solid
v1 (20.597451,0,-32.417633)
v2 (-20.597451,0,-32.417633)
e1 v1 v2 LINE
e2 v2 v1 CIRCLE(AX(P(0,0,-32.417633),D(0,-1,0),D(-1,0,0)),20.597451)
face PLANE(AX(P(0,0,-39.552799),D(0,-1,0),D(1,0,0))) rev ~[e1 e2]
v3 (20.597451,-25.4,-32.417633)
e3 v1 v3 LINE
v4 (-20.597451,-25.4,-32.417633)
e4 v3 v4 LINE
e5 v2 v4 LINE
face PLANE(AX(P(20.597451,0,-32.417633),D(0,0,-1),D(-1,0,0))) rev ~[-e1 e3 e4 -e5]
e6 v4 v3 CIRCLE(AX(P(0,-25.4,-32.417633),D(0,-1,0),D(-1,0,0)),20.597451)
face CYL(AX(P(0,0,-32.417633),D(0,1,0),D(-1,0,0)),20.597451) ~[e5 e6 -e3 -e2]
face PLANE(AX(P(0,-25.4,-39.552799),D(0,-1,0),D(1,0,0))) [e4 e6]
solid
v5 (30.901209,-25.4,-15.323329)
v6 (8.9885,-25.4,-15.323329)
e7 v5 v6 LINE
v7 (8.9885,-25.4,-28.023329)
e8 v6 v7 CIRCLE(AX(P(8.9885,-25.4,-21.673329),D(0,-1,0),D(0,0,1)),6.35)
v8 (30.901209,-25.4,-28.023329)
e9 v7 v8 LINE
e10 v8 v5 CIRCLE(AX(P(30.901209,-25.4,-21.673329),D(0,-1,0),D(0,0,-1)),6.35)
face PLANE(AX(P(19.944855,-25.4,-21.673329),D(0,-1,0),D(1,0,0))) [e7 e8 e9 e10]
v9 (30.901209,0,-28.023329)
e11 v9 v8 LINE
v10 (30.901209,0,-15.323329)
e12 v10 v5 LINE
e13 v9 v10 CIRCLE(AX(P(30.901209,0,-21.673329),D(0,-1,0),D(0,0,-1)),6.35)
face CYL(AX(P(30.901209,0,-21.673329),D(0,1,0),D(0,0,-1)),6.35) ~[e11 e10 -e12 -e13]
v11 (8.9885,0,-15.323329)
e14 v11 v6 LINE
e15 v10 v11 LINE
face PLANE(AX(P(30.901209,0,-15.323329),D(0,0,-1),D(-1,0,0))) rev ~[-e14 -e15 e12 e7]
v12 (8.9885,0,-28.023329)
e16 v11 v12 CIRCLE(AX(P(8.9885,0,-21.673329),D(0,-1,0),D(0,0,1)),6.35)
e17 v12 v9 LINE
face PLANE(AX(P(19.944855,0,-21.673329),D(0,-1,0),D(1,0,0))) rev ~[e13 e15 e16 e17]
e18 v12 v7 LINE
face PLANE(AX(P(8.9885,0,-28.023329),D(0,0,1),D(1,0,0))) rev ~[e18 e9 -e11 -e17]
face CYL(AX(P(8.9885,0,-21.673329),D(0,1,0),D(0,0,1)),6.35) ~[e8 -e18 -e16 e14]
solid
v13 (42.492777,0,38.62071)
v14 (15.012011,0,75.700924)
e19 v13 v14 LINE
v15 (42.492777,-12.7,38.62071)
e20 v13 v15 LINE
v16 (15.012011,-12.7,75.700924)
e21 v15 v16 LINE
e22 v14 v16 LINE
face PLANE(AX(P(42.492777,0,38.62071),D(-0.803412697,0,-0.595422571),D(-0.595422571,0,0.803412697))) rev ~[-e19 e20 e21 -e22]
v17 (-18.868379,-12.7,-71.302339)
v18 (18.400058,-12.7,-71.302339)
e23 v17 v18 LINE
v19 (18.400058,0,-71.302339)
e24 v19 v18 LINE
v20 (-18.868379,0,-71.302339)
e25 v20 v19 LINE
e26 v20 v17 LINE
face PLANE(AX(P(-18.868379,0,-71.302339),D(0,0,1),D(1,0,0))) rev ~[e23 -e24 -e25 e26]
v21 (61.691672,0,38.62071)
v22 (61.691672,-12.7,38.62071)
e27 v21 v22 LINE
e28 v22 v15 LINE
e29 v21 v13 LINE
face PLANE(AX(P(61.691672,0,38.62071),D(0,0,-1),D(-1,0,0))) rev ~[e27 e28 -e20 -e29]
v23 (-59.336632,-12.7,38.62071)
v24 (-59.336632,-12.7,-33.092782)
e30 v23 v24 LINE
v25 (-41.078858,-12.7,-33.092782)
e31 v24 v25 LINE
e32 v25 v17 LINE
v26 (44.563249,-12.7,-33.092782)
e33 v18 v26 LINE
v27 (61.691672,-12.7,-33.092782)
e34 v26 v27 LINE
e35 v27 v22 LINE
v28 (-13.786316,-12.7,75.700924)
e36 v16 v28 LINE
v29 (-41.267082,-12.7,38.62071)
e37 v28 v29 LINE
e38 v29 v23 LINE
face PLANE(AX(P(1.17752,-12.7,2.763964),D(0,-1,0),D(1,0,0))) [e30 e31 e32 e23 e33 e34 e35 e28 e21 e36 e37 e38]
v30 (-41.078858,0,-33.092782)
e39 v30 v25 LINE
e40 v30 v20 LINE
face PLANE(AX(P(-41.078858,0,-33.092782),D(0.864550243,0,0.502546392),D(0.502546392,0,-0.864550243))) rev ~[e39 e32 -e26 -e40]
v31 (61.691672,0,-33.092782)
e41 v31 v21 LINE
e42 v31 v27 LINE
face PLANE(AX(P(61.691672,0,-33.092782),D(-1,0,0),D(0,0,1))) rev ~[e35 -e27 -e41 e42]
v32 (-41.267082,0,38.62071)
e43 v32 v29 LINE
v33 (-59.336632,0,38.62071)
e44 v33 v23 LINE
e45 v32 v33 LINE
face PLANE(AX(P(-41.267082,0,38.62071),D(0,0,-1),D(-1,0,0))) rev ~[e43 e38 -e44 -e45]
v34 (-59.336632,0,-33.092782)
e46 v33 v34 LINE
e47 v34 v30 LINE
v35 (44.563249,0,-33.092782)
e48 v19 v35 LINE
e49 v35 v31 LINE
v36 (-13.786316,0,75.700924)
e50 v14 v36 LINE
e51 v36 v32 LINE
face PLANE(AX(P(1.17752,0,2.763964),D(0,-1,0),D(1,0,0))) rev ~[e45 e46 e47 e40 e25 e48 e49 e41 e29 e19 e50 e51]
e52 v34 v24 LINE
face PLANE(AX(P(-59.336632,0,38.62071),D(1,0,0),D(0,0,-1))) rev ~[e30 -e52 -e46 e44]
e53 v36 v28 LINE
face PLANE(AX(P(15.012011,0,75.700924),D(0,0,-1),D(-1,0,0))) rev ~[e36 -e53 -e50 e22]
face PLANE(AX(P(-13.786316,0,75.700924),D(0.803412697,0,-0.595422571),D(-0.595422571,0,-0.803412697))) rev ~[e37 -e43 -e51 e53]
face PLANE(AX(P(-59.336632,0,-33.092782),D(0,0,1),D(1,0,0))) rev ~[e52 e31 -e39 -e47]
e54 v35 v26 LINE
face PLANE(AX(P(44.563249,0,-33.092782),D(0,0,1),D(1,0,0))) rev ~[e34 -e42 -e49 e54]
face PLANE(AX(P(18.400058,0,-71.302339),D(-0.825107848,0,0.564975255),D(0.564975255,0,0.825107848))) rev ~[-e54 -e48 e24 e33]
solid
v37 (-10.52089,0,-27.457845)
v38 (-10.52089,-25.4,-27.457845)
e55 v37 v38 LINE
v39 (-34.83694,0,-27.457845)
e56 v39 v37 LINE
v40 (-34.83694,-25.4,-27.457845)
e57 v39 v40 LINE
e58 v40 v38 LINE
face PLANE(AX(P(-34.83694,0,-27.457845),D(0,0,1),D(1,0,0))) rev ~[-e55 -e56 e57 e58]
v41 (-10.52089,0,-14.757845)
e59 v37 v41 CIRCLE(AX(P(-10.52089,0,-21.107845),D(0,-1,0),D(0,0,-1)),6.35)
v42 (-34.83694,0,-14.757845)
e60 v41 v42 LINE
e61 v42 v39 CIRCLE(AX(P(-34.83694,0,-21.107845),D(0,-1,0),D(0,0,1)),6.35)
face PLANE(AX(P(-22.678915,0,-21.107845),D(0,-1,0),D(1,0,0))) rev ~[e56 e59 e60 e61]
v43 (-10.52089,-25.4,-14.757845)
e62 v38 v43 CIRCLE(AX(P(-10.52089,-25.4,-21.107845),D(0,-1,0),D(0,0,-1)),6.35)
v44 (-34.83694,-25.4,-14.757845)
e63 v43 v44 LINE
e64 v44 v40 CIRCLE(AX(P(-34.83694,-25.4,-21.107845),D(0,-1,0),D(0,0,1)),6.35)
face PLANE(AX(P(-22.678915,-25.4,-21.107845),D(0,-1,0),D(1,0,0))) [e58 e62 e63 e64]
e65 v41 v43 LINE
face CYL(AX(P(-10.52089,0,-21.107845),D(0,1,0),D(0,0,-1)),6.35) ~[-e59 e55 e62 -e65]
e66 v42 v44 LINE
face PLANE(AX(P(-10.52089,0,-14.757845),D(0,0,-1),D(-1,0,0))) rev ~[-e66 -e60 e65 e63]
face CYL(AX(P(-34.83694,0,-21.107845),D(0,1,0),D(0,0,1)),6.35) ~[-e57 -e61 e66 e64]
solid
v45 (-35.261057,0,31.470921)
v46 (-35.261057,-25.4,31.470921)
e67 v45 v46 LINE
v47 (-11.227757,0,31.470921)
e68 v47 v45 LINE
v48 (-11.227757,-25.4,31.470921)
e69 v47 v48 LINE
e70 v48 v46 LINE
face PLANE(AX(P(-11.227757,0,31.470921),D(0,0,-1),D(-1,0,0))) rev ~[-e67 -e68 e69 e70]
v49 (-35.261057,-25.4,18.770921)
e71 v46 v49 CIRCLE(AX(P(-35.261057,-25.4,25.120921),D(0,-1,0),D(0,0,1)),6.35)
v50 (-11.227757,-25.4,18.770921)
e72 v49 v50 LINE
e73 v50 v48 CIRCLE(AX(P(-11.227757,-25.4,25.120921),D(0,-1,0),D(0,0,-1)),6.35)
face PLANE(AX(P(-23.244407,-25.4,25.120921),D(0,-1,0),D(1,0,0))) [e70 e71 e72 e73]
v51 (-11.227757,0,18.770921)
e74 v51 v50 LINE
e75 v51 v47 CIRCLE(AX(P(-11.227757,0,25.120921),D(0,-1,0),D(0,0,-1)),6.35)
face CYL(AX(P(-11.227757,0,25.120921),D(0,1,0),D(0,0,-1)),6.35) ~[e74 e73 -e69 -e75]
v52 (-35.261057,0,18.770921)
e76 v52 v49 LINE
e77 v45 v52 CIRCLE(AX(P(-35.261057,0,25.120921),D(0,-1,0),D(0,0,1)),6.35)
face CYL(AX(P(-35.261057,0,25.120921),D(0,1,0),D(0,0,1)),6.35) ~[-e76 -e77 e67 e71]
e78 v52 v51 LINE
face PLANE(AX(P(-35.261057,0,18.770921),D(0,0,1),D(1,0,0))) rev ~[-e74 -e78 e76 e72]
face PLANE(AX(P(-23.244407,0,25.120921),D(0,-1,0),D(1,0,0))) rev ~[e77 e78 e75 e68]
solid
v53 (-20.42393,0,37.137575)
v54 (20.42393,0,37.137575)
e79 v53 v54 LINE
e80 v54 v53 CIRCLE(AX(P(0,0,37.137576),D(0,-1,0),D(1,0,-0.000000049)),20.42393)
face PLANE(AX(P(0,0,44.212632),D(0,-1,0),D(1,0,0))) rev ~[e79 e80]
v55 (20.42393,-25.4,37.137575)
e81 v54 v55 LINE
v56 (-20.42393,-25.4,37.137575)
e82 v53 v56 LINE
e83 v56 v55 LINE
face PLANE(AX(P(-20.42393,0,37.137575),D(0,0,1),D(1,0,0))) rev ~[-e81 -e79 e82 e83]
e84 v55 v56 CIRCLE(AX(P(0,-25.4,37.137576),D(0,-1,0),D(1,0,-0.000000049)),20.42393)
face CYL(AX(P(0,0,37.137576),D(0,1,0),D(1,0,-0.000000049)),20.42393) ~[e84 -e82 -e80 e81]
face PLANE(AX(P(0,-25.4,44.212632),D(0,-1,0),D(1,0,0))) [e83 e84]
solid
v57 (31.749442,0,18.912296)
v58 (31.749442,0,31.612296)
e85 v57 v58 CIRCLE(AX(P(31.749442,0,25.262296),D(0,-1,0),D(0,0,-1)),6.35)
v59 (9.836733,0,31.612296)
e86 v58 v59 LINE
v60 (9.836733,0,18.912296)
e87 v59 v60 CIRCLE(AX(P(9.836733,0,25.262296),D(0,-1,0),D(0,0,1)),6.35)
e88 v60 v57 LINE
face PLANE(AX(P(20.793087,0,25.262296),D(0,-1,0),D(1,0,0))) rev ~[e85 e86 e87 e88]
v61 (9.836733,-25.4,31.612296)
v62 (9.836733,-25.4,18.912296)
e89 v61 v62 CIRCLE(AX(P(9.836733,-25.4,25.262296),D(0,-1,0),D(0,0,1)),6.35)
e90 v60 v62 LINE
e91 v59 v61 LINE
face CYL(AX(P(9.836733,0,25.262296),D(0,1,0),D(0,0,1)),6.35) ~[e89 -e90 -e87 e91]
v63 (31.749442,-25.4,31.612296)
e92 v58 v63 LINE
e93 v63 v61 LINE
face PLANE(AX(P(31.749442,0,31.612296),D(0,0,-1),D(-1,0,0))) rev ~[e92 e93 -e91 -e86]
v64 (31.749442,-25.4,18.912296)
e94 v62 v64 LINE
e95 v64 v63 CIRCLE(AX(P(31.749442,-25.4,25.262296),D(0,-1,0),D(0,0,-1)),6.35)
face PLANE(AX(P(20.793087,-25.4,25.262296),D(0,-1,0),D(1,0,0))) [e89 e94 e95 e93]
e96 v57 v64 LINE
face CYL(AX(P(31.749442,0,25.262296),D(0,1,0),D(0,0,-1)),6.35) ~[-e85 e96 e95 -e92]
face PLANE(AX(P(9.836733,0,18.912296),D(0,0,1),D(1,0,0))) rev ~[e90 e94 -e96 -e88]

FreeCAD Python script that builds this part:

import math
import FreeCAD as App
import Part
import Sketcher
Q = App.Units.Quantity


def add_polygon(sketch, points):
    """Adds a closed chain of lines whose ends are joined by coincident constraints."""
    first, n = sketch.GeometryCount, len(points)
    for a, b in zip(points, points[1:] + points[:1]):
        sketch.addGeometry(Part.LineSegment(App.Vector(*a, 0), App.Vector(*b, 0)), False)
    for i in range(n):
        sketch.addConstraint(Sketcher.Constraint("Coincident", first + i, 2, first + (i + 1) % n, 1))

doc = App.newDocument("Part")
body = doc.addObject("PartDesign::Body", "Body")
body.AllowCompound = True

sketch1 = body.newObject("Sketcher::SketchObject", "Sketch")
sketch1.AttachmentSupport = (doc.getObject("XZ_Plane"), [""])
sketch1.MapMode = "FlatFace"
sketch1.addGeometry(Part.ArcOfCircle(Part.Circle(App.Vector(-35, 25, 0), App.Vector(0, 0, 1), 6), math.radians(90), math.radians(270)), False)
sketch1.addGeometry(Part.LineSegment(App.Vector(-35, 19, 0), App.Vector(-11, 19, 0)), False)
sketch1.addGeometry(Part.ArcOfCircle(Part.Circle(App.Vector(-11, 25, 0), App.Vector(0, 0, 1), 6), math.radians(-90), math.radians(90)), False)
sketch1.addGeometry(Part.LineSegment(App.Vector(-11, 31, 0), App.Vector(-35, 31, 0)), False)
sketch1.addGeometry(Part.LineSegment(App.Vector(-20, 37, 0), App.Vector(20, 37, 0)), False)
sketch1.addGeometry(Part.ArcOfCircle(Part.Circle(App.Vector(0, 37, 0), App.Vector(0, 0, 1), 20), math.radians(0), math.radians(180)), False)
sketch1.addGeometry(Part.ArcOfCircle(Part.Circle(App.Vector(32, 25, 0), App.Vector(0, 0, 1), 6), math.radians(-90), math.radians(90)), False)
sketch1.addGeometry(Part.LineSegment(App.Vector(32, 32, 0), App.Vector(10, 32, 0)), False)
sketch1.addGeometry(Part.ArcOfCircle(Part.Circle(App.Vector(10, 25, 0), App.Vector(0, 0, 1), 6), math.radians(90), math.radians(270)), False)
sketch1.addGeometry(Part.LineSegment(App.Vector(10, 19, 0), App.Vector(32, 19, 0)), False)
sketch1.addGeometry(Part.ArcOfCircle(Part.Circle(App.Vector(-35, -21, 0), App.Vector(0, 0, 1), 6), math.radians(90), math.radians(270)), False)
sketch1.addGeometry(Part.LineSegment(App.Vector(-35, -27, 0), App.Vector(-11, -27, 0)), False)
sketch1.addGeometry(Part.ArcOfCircle(Part.Circle(App.Vector(-11, -21, 0), App.Vector(0, 0, 1), 6), math.radians(-90), math.radians(90)), False)
sketch1.addGeometry(Part.LineSegment(App.Vector(-11, -15, 0), App.Vector(-35, -15, 0)), False)
sketch1.addGeometry(Part.LineSegment(App.Vector(21, -32, 0), App.Vector(-21, -32, 0)), False)
sketch1.addGeometry(Part.ArcOfCircle(Part.Circle(App.Vector(0, -32, 0), App.Vector(0, 0, 1), 21), math.radians(180), math.radians(360)), False)
sketch1.addGeometry(Part.ArcOfCircle(Part.Circle(App.Vector(31, -22, 0), App.Vector(0, 0, 1), 6), math.radians(-90), math.radians(90)), False)
sketch1.addGeometry(Part.LineSegment(App.Vector(31, -15, 0), App.Vector(9, -15, 0)), False)
sketch1.addGeometry(Part.ArcOfCircle(Part.Circle(App.Vector(9, -22, 0), App.Vector(0, 0, 1), 6), math.radians(90), math.radians(270)), False)
sketch1.addGeometry(Part.LineSegment(App.Vector(9, -28, 0), App.Vector(31, -28, 0)), False)
sketch1.addConstraint(Sketcher.Constraint("Tangent", 0, 2, 1, 1))
sketch1.addConstraint(Sketcher.Constraint("Tangent", 1, 2, 2, 1))
sketch1.addConstraint(Sketcher.Constraint("Tangent", 2, 2, 3, 1))
sketch1.addConstraint(Sketcher.Constraint("Tangent", 3, 2, 0, 1))
sketch1.addConstraint(Sketcher.Constraint("Coincident", 4, 1, 5, 2))
sketch1.addConstraint(Sketcher.Constraint("Coincident", 5, 1, 4, 2))
sketch1.addConstraint(Sketcher.Constraint("Tangent", 6, 2, 7, 1))
sketch1.addConstraint(Sketcher.Constraint("Tangent", 7, 2, 8, 1))
sketch1.addConstraint(Sketcher.Constraint("Tangent", 8, 2, 9, 1))
sketch1.addConstraint(Sketcher.Constraint("Tangent", 9, 2, 6, 1))
sketch1.addConstraint(Sketcher.Constraint("Tangent", 10, 2, 11, 1))
sketch1.addConstraint(Sketcher.Constraint("Tangent", 11, 2, 12, 1))
sketch1.addConstraint(Sketcher.Constraint("Tangent", 12, 2, 13, 1))
sketch1.addConstraint(Sketcher.Constraint("Tangent", 13, 2, 10, 1))
sketch1.addConstraint(Sketcher.Constraint("Coincident", 14, 1, 15, 2))
sketch1.addConstraint(Sketcher.Constraint("Coincident", 15, 1, 14, 2))
sketch1.addConstraint(Sketcher.Constraint("Tangent", 16, 2, 17, 1))
sketch1.addConstraint(Sketcher.Constraint("Tangent", 17, 2, 18, 1))
sketch1.addConstraint(Sketcher.Constraint("Tangent", 18, 2, 19, 1))
sketch1.addConstraint(Sketcher.Constraint("Tangent", 19, 2, 16, 1))
sketch1.addConstraint(Sketcher.Constraint("Horizontal", 1))
sketch1.addConstraint(Sketcher.Constraint("Horizontal", 3))
sketch1.addConstraint(Sketcher.Constraint("Horizontal", 4))
sketch1.addConstraint(Sketcher.Constraint("Horizontal", 7))
sketch1.addConstraint(Sketcher.Constraint("Horizontal", 9))
sketch1.addConstraint(Sketcher.Constraint("Horizontal", 11))
sketch1.addConstraint(Sketcher.Constraint("Horizontal", 13))
sketch1.addConstraint(Sketcher.Constraint("Horizontal", 14))
sketch1.addConstraint(Sketcher.Constraint("Horizontal", 17))
sketch1.addConstraint(Sketcher.Constraint("Horizontal", 19))
sketch1.addConstraint(Sketcher.Constraint("Equal", 2, 6))
sketch1.addConstraint(Sketcher.Constraint("Equal", 8, 10))
sketch1.addConstraint(Sketcher.Constraint("Equal", 12, 16))
sketch1.addConstraint(Sketcher.Constraint("PointOnObject", 5, 3, -2))
sketch1.addConstraint(Sketcher.Constraint("PointOnObject", 15, 3, -2))
sketch1.addConstraint(Sketcher.Constraint("Horizontal", 5, 3, 4, 1))
sketch1.addConstraint(Sketcher.Constraint("Horizontal", 15, 3, 14, 1))
sketch1.addConstraint(Sketcher.Constraint("Equal", 9, 17))
sketch1.addConstraint(Sketcher.Constraint("Radius", 0, Q("0.25 in")))
sketch1.addConstraint(Sketcher.Constraint("Radius", 5, Q("20.42393 mm")))
sketch1.addConstraint(Sketcher.Constraint("Radius", 15, Q("20.597451 mm")))
sketch1.addConstraint(Sketcher.Constraint("DistanceX", 1, 1, 1, 2, Q("24.0333 mm")))
sketch1.addConstraint(Sketcher.Constraint("DistanceX", 7, 2, 7, 1, Q("21.912709 mm")))
sketch1.addConstraint(Sketcher.Constraint("DistanceX", 11, 1, 11, 2, Q("24.31605 mm")))
sketch1.addConstraint(Sketcher.Constraint("DistanceX", -1, 1, 18, 3, Q("8.9885 mm")))
sketch1.addConstraint(Sketcher.Constraint("DistanceX", 2, 3, 6, 3, Q("42.977199 mm")))
sketch1.addConstraint(Sketcher.Constraint("DistanceX", 12, 3, 16, 3, Q("41.422099 mm")))
sketch1.addConstraint(Sketcher.Constraint("DistanceY", -1, 1, 0, 3, Q("25.120921 mm")))
sketch1.addConstraint(Sketcher.Constraint("DistanceX", -1, 1, 6, 3, Q("31.749442 mm")))
sketch1.addConstraint(Sketcher.Constraint("DistanceY", 16, 3, -1, 1, Q("21.673329 mm")))
sketch1.addConstraint(Sketcher.Constraint("DistanceY", 6, 3, 5, 3, Q("11.87528 mm")))
sketch1.addConstraint(Sketcher.Constraint("DistanceY", 10, 3, 8, 3, Q("46.370141 mm")))
sketch1.addConstraint(Sketcher.Constraint("DistanceY", 15, 3, 12, 3, Q("11.309788 mm")))
sketch1.addConstraint(Sketcher.Constraint("DistanceY", -1, 1, 5, 3, Q("37.137576 mm")))
pad1 = body.newObject("PartDesign::Pad", "Pad")
pad1.Profile = sketch1
pad1.Length = Q("1 in")
body2 = doc.addObject("PartDesign::Body", "Body001")

sketch2 = body2.newObject("Sketcher::SketchObject", "Sketch001")
sketch2.AttachmentSupport = (doc.getObject("XZ_Plane001"), [""])
sketch2.MapMode = "FlatFace"
add_polygon(sketch2, [(62, -33), (62, 39), (42, 39), (15, 76), (-14, 76), (-41, 39), (-59, 39), (-59, -33), (-41, -33), (-19, -71), (18, -71), (45, -33)])
sketch2.addConstraint(Sketcher.Constraint("Vertical", 0))
sketch2.addConstraint(Sketcher.Constraint("Horizontal", 1))
sketch2.addConstraint(Sketcher.Constraint("Horizontal", 3))
sketch2.addConstraint(Sketcher.Constraint("Horizontal", 5))
sketch2.addConstraint(Sketcher.Constraint("Vertical", 6))
sketch2.addConstraint(Sketcher.Constraint("Horizontal", 7))
sketch2.addConstraint(Sketcher.Constraint("Horizontal", 9))
sketch2.addConstraint(Sketcher.Constraint("Horizontal", 11))
sketch2.addConstraint(Sketcher.Constraint("Horizontal", 1, 2, 4, 2))
sketch2.addConstraint(Sketcher.Constraint("Horizontal", 7, 2, 10, 2))
sketch2.addConstraint(Sketcher.Constraint("Equal", 2, 4))
sketch2.addConstraint(Sketcher.Constraint("DistanceX", 5, 2, 5, 1, Q("18.06955 mm")))
sketch2.addConstraint(Sketcher.Constraint("Distance", 10, Q("46.308561 mm")))
sketch2.addConstraint(Sketcher.Constraint("DistanceX", 1, 2, 1, 1, Q("19.198895 mm")))
sketch2.addConstraint(Sketcher.Constraint("DistanceX", 3, 2, 3, 1, Q("28.798327 mm")))
sketch2.addConstraint(Sketcher.Constraint("DistanceX", 7, 1, 7, 2, Q("18.257774 mm")))
sketch2.addConstraint(Sketcher.Constraint("DistanceX", 9, 1, 9, 2, Q("37.268437 mm")))
sketch2.addConstraint(Sketcher.Constraint("DistanceX", 11, 1, 11, 2, Q("17.128423 mm")))
sketch2.addConstraint(Sketcher.Constraint("DistanceY", 0, 1, 0, 2, Q("71.713492 mm")))
sketch2.addConstraint(Sketcher.Constraint("DistanceX", -1, 1, 0, 2, Q("61.691672 mm")))
sketch2.addConstraint(Sketcher.Constraint("DistanceY", -1, 1, 0, 2, Q("38.62071 mm")))
sketch2.addConstraint(Sketcher.Constraint("DistanceX", -1, 1, 2, 2, Q("15.012011 mm")))
sketch2.addConstraint(Sketcher.Constraint("DistanceX", 8, 2, -1, 1, Q("18.868379 mm")))
sketch2.addConstraint(Sketcher.Constraint("Distance", 2, Q("46.153383 mm")))
pad2 = body2.newObject("PartDesign::Pad", "Pad001")
pad2.Profile = sketch2
pad2.Length = Q("0.5 in")

doc.recompute()
